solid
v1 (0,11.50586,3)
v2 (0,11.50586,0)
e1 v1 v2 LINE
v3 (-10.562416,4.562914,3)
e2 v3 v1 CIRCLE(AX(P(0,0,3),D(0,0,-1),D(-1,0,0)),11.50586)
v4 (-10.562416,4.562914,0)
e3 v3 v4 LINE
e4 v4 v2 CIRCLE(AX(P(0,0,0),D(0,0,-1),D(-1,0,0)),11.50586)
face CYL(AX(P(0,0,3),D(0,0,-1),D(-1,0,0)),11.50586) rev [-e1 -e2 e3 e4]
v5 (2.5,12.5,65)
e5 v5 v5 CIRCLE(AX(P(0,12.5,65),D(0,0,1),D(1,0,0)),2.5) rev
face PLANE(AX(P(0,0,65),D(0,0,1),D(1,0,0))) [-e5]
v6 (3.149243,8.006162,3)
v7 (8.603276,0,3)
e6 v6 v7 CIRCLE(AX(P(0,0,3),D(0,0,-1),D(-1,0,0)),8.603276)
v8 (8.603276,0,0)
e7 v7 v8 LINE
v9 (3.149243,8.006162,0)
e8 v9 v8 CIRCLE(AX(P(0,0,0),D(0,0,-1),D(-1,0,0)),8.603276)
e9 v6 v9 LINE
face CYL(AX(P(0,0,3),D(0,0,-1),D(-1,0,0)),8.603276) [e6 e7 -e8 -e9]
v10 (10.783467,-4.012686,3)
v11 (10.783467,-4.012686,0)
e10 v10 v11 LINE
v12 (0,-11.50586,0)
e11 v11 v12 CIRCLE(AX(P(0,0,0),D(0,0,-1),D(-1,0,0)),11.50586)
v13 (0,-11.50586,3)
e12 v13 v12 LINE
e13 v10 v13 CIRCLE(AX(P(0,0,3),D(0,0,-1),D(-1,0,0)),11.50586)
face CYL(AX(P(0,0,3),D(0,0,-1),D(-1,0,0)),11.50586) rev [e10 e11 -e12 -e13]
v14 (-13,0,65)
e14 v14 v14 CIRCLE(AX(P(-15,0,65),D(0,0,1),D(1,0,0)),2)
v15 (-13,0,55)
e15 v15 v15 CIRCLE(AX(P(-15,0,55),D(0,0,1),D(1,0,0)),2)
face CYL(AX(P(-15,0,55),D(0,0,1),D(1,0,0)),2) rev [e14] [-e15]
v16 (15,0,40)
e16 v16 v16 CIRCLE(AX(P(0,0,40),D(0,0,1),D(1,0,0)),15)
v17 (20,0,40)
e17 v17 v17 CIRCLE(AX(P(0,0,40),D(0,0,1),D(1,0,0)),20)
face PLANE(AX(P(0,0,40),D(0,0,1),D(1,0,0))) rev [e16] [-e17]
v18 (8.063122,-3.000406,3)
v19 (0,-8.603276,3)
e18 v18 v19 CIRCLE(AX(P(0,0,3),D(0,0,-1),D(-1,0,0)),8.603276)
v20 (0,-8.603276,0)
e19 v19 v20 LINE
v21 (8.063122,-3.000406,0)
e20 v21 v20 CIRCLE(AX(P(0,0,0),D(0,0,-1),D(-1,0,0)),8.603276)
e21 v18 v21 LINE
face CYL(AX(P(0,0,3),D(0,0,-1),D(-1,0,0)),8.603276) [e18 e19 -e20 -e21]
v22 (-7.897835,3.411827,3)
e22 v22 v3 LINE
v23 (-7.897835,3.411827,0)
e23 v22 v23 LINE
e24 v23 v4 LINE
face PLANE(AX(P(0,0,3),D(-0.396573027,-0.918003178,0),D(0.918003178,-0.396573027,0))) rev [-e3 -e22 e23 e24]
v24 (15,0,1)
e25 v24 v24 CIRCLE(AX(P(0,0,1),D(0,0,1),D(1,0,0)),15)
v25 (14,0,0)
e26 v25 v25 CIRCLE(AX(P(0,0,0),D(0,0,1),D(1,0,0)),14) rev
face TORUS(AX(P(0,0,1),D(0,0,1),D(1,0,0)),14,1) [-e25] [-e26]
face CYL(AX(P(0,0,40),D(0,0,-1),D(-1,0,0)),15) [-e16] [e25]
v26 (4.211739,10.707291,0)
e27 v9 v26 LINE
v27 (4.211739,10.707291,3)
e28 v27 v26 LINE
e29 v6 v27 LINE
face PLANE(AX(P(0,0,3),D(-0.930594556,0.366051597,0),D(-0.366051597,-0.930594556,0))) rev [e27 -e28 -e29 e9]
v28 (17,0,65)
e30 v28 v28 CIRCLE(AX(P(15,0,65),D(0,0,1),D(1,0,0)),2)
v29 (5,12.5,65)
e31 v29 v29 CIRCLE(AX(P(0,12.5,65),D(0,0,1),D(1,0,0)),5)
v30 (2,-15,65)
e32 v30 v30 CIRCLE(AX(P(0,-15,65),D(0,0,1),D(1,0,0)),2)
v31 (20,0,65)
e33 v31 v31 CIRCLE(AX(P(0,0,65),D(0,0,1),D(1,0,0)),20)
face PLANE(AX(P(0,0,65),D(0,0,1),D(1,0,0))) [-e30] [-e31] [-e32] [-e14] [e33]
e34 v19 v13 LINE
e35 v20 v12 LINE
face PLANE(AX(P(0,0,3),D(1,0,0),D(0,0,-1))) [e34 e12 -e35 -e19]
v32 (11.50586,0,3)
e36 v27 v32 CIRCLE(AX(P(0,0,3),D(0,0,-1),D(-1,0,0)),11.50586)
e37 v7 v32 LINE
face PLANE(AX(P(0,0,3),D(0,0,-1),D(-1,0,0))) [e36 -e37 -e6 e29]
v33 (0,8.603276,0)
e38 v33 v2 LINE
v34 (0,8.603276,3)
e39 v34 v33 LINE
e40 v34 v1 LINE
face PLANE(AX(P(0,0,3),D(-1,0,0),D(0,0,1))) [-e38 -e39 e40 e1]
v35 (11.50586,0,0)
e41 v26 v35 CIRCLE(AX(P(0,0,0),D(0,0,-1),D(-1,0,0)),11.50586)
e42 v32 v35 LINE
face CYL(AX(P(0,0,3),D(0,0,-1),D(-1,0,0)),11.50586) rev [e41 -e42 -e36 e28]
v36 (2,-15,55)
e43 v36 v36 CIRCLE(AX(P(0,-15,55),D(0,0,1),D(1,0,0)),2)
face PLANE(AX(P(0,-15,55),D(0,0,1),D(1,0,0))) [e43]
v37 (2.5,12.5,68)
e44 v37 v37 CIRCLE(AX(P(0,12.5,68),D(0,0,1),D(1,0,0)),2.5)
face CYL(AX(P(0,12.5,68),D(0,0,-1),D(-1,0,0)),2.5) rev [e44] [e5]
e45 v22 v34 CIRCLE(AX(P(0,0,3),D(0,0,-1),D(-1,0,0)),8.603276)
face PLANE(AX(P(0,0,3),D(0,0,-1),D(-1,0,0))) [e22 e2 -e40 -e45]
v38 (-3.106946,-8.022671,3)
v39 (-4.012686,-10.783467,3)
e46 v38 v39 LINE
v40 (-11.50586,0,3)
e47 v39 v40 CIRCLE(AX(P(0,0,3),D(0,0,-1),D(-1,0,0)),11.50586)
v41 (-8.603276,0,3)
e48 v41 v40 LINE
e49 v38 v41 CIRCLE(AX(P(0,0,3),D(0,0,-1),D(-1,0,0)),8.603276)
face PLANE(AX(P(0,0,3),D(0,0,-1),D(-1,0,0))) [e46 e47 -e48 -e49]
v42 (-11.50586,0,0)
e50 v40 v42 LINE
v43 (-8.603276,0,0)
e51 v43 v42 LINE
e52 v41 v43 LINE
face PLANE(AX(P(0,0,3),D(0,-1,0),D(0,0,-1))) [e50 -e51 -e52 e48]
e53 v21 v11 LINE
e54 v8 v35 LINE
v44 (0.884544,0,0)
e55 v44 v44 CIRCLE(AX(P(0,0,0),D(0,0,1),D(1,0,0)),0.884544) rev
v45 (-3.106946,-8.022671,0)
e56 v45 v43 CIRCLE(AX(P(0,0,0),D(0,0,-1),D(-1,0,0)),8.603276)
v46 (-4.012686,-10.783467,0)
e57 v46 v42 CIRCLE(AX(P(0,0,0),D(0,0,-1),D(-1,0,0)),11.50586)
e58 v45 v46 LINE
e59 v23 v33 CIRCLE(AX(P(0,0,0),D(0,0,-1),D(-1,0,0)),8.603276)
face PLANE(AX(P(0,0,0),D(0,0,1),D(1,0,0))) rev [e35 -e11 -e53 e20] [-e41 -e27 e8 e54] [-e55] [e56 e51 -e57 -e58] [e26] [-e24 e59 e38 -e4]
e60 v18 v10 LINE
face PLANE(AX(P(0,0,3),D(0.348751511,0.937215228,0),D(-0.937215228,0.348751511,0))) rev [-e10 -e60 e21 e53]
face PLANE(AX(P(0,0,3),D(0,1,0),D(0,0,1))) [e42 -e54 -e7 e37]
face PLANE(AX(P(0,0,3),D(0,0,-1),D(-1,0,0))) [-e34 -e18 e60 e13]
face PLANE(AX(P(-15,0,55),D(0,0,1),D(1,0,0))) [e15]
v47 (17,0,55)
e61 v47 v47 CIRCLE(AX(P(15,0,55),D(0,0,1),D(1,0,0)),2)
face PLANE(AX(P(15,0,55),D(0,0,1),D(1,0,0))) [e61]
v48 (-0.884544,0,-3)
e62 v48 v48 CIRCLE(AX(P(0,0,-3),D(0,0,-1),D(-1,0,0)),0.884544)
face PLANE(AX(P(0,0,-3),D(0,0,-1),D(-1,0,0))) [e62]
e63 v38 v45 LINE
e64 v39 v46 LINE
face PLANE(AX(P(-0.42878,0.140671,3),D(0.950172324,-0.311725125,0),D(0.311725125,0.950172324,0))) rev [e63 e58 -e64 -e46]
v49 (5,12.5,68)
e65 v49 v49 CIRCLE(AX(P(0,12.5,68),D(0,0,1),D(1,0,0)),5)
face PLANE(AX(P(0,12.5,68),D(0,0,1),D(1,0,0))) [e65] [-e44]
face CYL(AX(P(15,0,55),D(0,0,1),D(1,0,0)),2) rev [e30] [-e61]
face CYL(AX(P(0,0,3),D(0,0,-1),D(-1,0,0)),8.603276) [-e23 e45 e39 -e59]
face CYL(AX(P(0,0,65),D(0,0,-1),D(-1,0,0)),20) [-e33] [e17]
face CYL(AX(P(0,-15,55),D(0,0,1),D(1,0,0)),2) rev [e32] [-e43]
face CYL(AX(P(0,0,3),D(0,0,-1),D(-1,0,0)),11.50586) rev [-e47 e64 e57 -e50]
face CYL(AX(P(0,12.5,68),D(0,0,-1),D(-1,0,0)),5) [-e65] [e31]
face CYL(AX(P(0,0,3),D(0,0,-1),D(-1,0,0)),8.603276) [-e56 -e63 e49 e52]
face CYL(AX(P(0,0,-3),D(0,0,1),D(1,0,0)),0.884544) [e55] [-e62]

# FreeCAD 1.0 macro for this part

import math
import FreeCAD as App
import Part
import Sketcher
from FreeCAD import Vector
Q = App.Units.Quantity


def edges_at(feature, points):
    """Names of the edges that pass closest to the given points."""
    edges = feature.Shape.Edges
    near = lambda p: min(range(len(edges)), key=lambda i: edges[i].distToShape(Part.Vertex(*p))[0])
    return sorted({f"Edge{near(p) + 1}" for p in points})

doc = App.newDocument("Part")
body = doc.addObject("PartDesign::Body", "Body")

sketch1 = body.newObject("Sketcher::SketchObject", "Sketch")
sketch1.AttachmentSupport = (doc.getObject("XY_Plane"), [""])
sketch1.MapMode = "FlatFace"
sketch1.addGeometry(Part.Circle(Vector(0, 0, 0), Vector(0, 0, 1), 15), False)
sketch1.addConstraint(Sketcher.Constraint("Coincident", 0, 3, -1, 1))
sketch1.addConstraint(Sketcher.Constraint("Diameter", 0, Q("30 mm")))
pad1 = body.newObject("PartDesign::Pad", "Pad")
pad1.Profile = sketch1
pad1.Length = 40

sketch2 = body.newObject("Sketcher::SketchObject", "Sketch001")
sketch2.AttachmentSupport = (doc.getObject("XY_Plane"), [""])
sketch2.MapMode = "FlatFace"
sketch2.AttachmentOffset = App.Placement(Vector(0, 0, 40), App.Rotation())
sketch2.addGeometry(Part.Circle(Vector(0, 0, 0), Vector(0, 0, 1), 20), False)
sketch2.addConstraint(Sketcher.Constraint("Coincident", 0, 3, -1, 1))
sketch2.addConstraint(Sketcher.Constraint("Diameter", 0, Q("40 mm")))
pad2 = body.newObject("PartDesign::Pad", "Pad001")
pad2.Profile = sketch2
pad2.Length = 25

sketch3 = body.newObject("Sketcher::SketchObject", "Sketch002")
sketch3.AttachmentSupport = (doc.getObject("XY_Plane"), [""])
sketch3.MapMode = "FlatFace"
sketch3.addGeometry(Part.Circle(Vector(0, 0, 0), Vector(0, 0, 1), 0.9), False)
sketch3.addConstraint(Sketcher.Constraint("Coincident", 0, 3, -1, 1))
sketch3.addConstraint(Sketcher.Constraint("Diameter", 0, Q("1.769087 mm")))
pad3 = body.newObject("PartDesign::Pad", "Pad002")
pad3.Profile = sketch3
pad3.Length = 3
pad3.Reversed = True

sketch4 = body.newObject("Sketcher::SketchObject", "Sketch003")
sketch4.AttachmentSupport = (doc.getObject("XY_Plane"), [""])
sketch4.MapMode = "FlatFace"
sketch4.AttachmentOffset = App.Placement(Vector(0, 0, 65), App.Rotation())
sketch4.addGeometry(Part.Circle(Vector(0, 12.5, 0), Vector(0, 0, 1), 5), False)
sketch4.addGeometry(Part.Circle(Vector(0, 12.5, 0), Vector(0, 0, 1), 2.5), False)
sketch4.addConstraint(Sketcher.Constraint("Coincident", 1, 3, 0, 3))
sketch4.addConstraint(Sketcher.Constraint("PointOnObject", 0, 3, -2))
sketch4.addConstraint(Sketcher.Constraint("Diameter", 0, Q("10 mm")))
sketch4.addConstraint(Sketcher.Constraint("Diameter", 1, Q("5 mm")))
sketch4.addConstraint(Sketcher.Constraint("DistanceY", -1, 1, 0, 3, Q("12.5 mm")))
pad4 = body.newObject("PartDesign::Pad", "Pad003")
pad4.Profile = sketch4
pad4.Length = 3

sketch5 = body.newObject("Sketcher::SketchObject", "Sketch004")
sketch5.AttachmentSupport = (doc.getObject("XY_Plane"), [""])
sketch5.MapMode = "FlatFace"
sketch5.addGeometry(Part.LineSegment(Vector(3.1, 8, 0), Vector(4.2, 10.7, 0)), False)
sketch5.addGeometry(Part.ArcOfCircle(Part.Circle(Vector(0, 0, 0), Vector(0, 0, 1), 11.5), math.radians(0), math.radians(69)), False)
sketch5.addGeometry(Part.LineSegment(Vector(11.5, 0, 0), Vector(8.6, 0, 0)), False)
sketch5.addGeometry(Part.ArcOfCircle(Part.Circle(Vector(0, 0, 0), Vector(0, 0, 1), 8.6), math.radians(0), math.radians(69)), False)
sketch5.addGeometry(Part.LineSegment(Vector(8.1, -3, 0), Vector(10.8, -4, 0)), False)
sketch5.addGeometry(Part.ArcOfCircle(Part.Circle(Vector(0, 0, 0), Vector(0, 0, 1), 11.5), math.radians(-90), math.radians(-20)), False)
sketch5.addGeometry(Part.LineSegment(Vector(0, -11.5, 0), Vector(0, -8.6, 0)), False)
sketch5.addGeometry(Part.ArcOfCircle(Part.Circle(Vector(0, 0, 0), Vector(0, 0, 1), 8.6), math.radians(-90), math.radians(-20)), False)
sketch5.addGeometry(Part.ArcOfCircle(Part.Circle(Vector(0, 0, 0), Vector(0, 0, 1), 8.6), math.radians(-180), math.radians(-111)), False)
sketch5.addGeometry(Part.LineSegment(Vector(-3.1, -8, 0), Vector(-4, -10.8, 0)), False)
sketch5.addGeometry(Part.ArcOfCircle(Part.Circle(Vector(0, 0, 0), Vector(0, 0, 1), 11.5), math.radians(180), math.radians(250)), False)
sketch5.addGeometry(Part.LineSegment(Vector(-11.5, 0, 0), Vector(-8.6, 0, 0)), False)
sketch5.addGeometry(Part.ArcOfCircle(Part.Circle(Vector(0, 0, 0), Vector(0, 0, 1), 8.6), math.radians(90), math.radians(157)), False)
sketch5.addGeometry(Part.LineSegment(Vector(-7.9, 3.4, 0), Vector(-10.6, 4.6, 0)), False)
sketch5.addGeometry(Part.ArcOfCircle(Part.Circle(Vector(0, 0, 0), Vector(0, 0, 1), 11.5), math.radians(90), math.radians(157)), False)
sketch5.addGeometry(Part.LineSegment(Vector(0, 11.5, 0), Vector(0, 8.6, 0)), False)
sketch5.addConstraint(Sketcher.Constraint("Coincident", 0, 2, 1, 2))
sketch5.addConstraint(Sketcher.Constraint("Coincident", 1, 1, 2, 1))
sketch5.addConstraint(Sketcher.Constraint("Coincident", 2, 2, 3, 1))
sketch5.addConstraint(Sketcher.Constraint("Coincident", 3, 2, 0, 1))
sketch5.addConstraint(Sketcher.Constraint("Coincident", 4, 2, 5, 2))
sketch5.addConstraint(Sketcher.Constraint("Coincident", 5, 1, 6, 1))
sketch5.addConstraint(Sketcher.Constraint("Coincident", 6, 2, 7, 1))
sketch5.addConstraint(Sketcher.Constraint("Coincident", 7, 2, 4, 1))
sketch5.addConstraint(Sketcher.Constraint("Coincident", 8, 2, 9, 1))
sketch5.addConstraint(Sketcher.Constraint("Coincident", 9, 2, 10, 2))
sketch5.addConstraint(Sketcher.Constraint("Coincident", 10, 1, 11, 1))
sketch5.addConstraint(Sketcher.Constraint("Coincident", 11, 2, 8, 1))
sketch5.addConstraint(Sketcher.Constraint("Coincident", 12, 2, 13, 1))
sketch5.addConstraint(Sketcher.Constraint("Coincident", 13, 2, 14, 2))
sketch5.addConstraint(Sketcher.Constraint("Coincident", 14, 1, 15, 1))
sketch5.addConstraint(Sketcher.Constraint("Coincident", 15, 2, 12, 1))
sketch5.addConstraint(Sketcher.Constraint("Horizontal", 2))
sketch5.addConstraint(Sketcher.Constraint("Vertical", 6))
sketch5.addConstraint(Sketcher.Constraint("Horizontal", 11))
sketch5.addConstraint(Sketcher.Constraint("Vertical", 15))
sketch5.addConstraint(Sketcher.Constraint("Coincident", 1, 3, -1, 1))
sketch5.addConstraint(Sketcher.Constraint("Coincident", 3, 3, -1, 1))
sketch5.addConstraint(Sketcher.Constraint("Coincident", 5, 3, -1, 1))
sketch5.addConstraint(Sketcher.Constraint("Coincident", 7, 3, -1, 1))
sketch5.addConstraint(Sketcher.Constraint("Coincident", 8, 3, -1, 1))
sketch5.addConstraint(Sketcher.Constraint("Coincident", 10, 3, -1, 1))
sketch5.addConstraint(Sketcher.Constraint("Coincident", 12, 3, -1, 1))
sketch5.addConstraint(Sketcher.Constraint("Coincident", 14, 3, -1, 1))
sketch5.addConstraint(Sketcher.Constraint("Equal", 1, 5))
sketch5.addConstraint(Sketcher.Constraint("Equal", 3, 7))
sketch5.addConstraint(Sketcher.Constraint("Equal", 7, 8))
sketch5.addConstraint(Sketcher.Constraint("Equal", 5, 10))
sketch5.addConstraint(Sketcher.Constraint("Equal", 8, 12))
sketch5.addConstraint(Sketcher.Constraint("Equal", 10, 14))
sketch5.addConstraint(Sketcher.Constraint("PointOnObject", 1, 1, -1))
sketch5.addConstraint(Sketcher.Constraint("PointOnObject", 5, 1, -2))
sketch5.addConstraint(Sketcher.Constraint("PointOnObject", 10, 1, -1))
sketch5.addConstraint(Sketcher.Constraint("PointOnObject", 14, 1, -2))
sketch5.addConstraint(Sketcher.Constraint("Radius", 1, Q("11.50586 mm")))
sketch5.addConstraint(Sketcher.Constraint("Radius", 3, Q("8.603276 mm")))
sketch5.addConstraint(Sketcher.Constraint("DistanceY", 3, 2, 14, 1, Q("3.499698 mm")))
sketch5.addConstraint(Sketcher.Constraint("DistanceX", -1, 1, 0, 2, Q("4.211739 mm")))
sketch5.addConstraint(Sketcher.Constraint("DistanceX", -1, 1, 7, 2, Q("8.063122 mm")))
sketch5.addConstraint(Sketcher.Constraint("DistanceY", 8, 2, -1, 1, Q("8.022671 mm")))
sketch5.addConstraint(Sketcher.Constraint("DistanceX", 2, 2, 4, 2, Q("2.180191 mm")))
sketch5.addConstraint(Sketcher.Constraint("DistanceX", 9, 2, 8, 2, Q("0.90574 mm")))
sketch5.addConstraint(Sketcher.Constraint("DistanceX", 11, 2, 12, 2, Q("0.705441 mm")))
sketch5.addConstraint(Sketcher.Constraint("DistanceX", 13, 2, 12, 2, Q("2.664581 mm")))
pocket1 = body.newObject("PartDesign::Pocket", "Pocket")
pocket1.Profile = sketch5
pocket1.Length = 3
pocket1.Reversed = True
doc.recompute()

fillet = body.newObject("PartDesign::Fillet", "Fillet")
fillet.Base = (pocket1, edges_at(pocket1, [(-15, 0, 0)]))
fillet.Radius = 1

sketch6 = body.newObject("Sketcher::SketchObject", "Sketch005")
sketch6.AttachmentSupport = (doc.getObject("XY_Plane"), [""])
sketch6.MapMode = "FlatFace"
sketch6.AttachmentOffset = App.Placement(Vector(0, 0, 65), App.Rotation())
sketch6.addGeometry(Part.Circle(Vector(15, 0, 0), Vector(0, 0, 1), 2), False)
sketch6.addGeometry(Part.Circle(Vector(-15, 0, 0), Vector(0, 0, 1), 2), False)
sketch6.addGeometry(Part.Circle(Vector(0, -15, 0), Vector(0, 0, 1), 2), False)
sketch6.addConstraint(Sketcher.Constraint("Equal", 0, 1))
sketch6.addConstraint(Sketcher.Constraint("Equal", 1, 2))
sketch6.addConstraint(Sketcher.Constraint("Symmetric", 0, 3, 1, 3, -1, 1))
sketch6.addConstraint(Sketcher.Constraint("PointOnObject", 0, 3, -1))
sketch6.addConstraint(Sketcher.Constraint("PointOnObject", 2, 3, -2))
sketch6.addConstraint(Sketcher.Constraint("Diameter", 0, Q("4 mm")))
sketch6.addConstraint(Sketcher.Constraint("DistanceX", -1, 1, 0, 3, Q("15 mm")))
sketch6.addConstraint(Sketcher.Constraint("DistanceY", 2, 3, -1, 1, Q("15 mm")))
pocket2 = body.newObject("PartDesign::Pocket", "Pocket001")
pocket2.Profile = sketch6
pocket2.Length = 10

doc.recompute()
